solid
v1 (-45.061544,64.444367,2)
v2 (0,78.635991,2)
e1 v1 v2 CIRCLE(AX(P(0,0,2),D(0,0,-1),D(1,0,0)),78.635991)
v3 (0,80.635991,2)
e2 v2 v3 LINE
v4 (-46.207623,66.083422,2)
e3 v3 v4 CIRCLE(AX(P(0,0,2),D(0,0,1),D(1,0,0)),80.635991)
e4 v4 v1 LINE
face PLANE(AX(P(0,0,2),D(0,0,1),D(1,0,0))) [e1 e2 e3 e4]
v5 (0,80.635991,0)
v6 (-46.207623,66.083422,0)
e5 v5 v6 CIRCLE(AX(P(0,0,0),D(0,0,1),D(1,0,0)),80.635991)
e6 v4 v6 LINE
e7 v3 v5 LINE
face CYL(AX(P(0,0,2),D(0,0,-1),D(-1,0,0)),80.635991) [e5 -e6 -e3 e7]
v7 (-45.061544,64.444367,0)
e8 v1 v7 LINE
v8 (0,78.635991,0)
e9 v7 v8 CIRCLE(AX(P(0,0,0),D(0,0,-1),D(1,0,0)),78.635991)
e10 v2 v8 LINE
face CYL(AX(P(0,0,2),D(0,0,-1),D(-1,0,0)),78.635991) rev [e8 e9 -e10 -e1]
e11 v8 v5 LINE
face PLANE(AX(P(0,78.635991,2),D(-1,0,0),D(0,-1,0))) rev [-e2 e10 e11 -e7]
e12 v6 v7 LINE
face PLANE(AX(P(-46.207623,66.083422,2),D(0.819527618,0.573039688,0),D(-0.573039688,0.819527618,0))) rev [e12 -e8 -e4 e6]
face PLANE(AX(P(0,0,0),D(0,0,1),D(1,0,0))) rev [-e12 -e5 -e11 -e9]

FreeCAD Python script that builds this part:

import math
import FreeCAD as App
import Part
import Sketcher
from FreeCAD import Vector
Q = App.Units.Quantity

doc = App.newDocument("Part")
params = doc.addObject("Spreadsheet::Sheet", "Params")
for row, (alias, value) in enumerate([
    ("sketch1_height", "2 mm"),
    ("pad1_length", "2 mm"),
], start=1):
    params.set(f"A{row}", alias)
    params.set(f"B{row}", "=" + value)
    params.setAlias(f"B{row}", alias)

body = doc.addObject("PartDesign::Body", "Body")

# Sketch on XY plane
sketch1 = body.newObject("Sketcher::SketchObject", "Sketch")
sketch1.AttachmentSupport = (doc.getObject("XY_Plane"), [""])
sketch1.MapMode = "FlatFace"
sketch1.addGeometry([
    Part.LineSegment(Vector(-46.207623, 66.083422, 0), Vector(-45.061544, 64.444367, 0)),
    Part.ArcOfCircle(Part.Circle(Vector(0, 0, 0), Vector(0, 0, 1), 78.635991), math.radians(90), math.radians(124.962466)),
    Part.LineSegment(Vector(0, 78.635991, 0), Vector(0, 80.635991, 0)),
    Part.ArcOfCircle(Part.Circle(Vector(0, 0, 0), Vector(0, 0, 1), 80.635991), math.radians(90), math.radians(124.962466)),
], False)
sketch1.addConstraint([
    Sketcher.Constraint("Coincident", 0, 2, 1, 2),
    Sketcher.Constraint("Coincident", 1, 1, 2, 1),
    Sketcher.Constraint("Coincident", 2, 2, 3, 1),
    Sketcher.Constraint("Coincident", 3, 2, 0, 1),
    Sketcher.Constraint("Vertical", 2),
    Sketcher.Constraint("Coincident", 1, 3, -1, 1),
    Sketcher.Constraint("Coincident", 3, 3, -1, 1),
    Sketcher.Constraint("PointOnObject", 1, 1, -2),
    Sketcher.Constraint("DistanceY", 2, 1, 2, 2, Q("2 mm")),
    Sketcher.Constraint("Radius", 1, Q("78.635991 mm")),
    Sketcher.Constraint("DistanceY", -1, 1, 3, 2, Q("66.083422 mm")),
    Sketcher.Constraint("DistanceX", 3, 2, 0, 2, Q("1.146079 mm")),
])
sketch1.setExpression("Constraints[8]", "Params.sketch1_height")
pad1 = body.newObject("PartDesign::Pad", "Pad")
pad1.Profile = sketch1
pad1.setExpression("Length", "Params.pad1_length")

doc.recompute()
